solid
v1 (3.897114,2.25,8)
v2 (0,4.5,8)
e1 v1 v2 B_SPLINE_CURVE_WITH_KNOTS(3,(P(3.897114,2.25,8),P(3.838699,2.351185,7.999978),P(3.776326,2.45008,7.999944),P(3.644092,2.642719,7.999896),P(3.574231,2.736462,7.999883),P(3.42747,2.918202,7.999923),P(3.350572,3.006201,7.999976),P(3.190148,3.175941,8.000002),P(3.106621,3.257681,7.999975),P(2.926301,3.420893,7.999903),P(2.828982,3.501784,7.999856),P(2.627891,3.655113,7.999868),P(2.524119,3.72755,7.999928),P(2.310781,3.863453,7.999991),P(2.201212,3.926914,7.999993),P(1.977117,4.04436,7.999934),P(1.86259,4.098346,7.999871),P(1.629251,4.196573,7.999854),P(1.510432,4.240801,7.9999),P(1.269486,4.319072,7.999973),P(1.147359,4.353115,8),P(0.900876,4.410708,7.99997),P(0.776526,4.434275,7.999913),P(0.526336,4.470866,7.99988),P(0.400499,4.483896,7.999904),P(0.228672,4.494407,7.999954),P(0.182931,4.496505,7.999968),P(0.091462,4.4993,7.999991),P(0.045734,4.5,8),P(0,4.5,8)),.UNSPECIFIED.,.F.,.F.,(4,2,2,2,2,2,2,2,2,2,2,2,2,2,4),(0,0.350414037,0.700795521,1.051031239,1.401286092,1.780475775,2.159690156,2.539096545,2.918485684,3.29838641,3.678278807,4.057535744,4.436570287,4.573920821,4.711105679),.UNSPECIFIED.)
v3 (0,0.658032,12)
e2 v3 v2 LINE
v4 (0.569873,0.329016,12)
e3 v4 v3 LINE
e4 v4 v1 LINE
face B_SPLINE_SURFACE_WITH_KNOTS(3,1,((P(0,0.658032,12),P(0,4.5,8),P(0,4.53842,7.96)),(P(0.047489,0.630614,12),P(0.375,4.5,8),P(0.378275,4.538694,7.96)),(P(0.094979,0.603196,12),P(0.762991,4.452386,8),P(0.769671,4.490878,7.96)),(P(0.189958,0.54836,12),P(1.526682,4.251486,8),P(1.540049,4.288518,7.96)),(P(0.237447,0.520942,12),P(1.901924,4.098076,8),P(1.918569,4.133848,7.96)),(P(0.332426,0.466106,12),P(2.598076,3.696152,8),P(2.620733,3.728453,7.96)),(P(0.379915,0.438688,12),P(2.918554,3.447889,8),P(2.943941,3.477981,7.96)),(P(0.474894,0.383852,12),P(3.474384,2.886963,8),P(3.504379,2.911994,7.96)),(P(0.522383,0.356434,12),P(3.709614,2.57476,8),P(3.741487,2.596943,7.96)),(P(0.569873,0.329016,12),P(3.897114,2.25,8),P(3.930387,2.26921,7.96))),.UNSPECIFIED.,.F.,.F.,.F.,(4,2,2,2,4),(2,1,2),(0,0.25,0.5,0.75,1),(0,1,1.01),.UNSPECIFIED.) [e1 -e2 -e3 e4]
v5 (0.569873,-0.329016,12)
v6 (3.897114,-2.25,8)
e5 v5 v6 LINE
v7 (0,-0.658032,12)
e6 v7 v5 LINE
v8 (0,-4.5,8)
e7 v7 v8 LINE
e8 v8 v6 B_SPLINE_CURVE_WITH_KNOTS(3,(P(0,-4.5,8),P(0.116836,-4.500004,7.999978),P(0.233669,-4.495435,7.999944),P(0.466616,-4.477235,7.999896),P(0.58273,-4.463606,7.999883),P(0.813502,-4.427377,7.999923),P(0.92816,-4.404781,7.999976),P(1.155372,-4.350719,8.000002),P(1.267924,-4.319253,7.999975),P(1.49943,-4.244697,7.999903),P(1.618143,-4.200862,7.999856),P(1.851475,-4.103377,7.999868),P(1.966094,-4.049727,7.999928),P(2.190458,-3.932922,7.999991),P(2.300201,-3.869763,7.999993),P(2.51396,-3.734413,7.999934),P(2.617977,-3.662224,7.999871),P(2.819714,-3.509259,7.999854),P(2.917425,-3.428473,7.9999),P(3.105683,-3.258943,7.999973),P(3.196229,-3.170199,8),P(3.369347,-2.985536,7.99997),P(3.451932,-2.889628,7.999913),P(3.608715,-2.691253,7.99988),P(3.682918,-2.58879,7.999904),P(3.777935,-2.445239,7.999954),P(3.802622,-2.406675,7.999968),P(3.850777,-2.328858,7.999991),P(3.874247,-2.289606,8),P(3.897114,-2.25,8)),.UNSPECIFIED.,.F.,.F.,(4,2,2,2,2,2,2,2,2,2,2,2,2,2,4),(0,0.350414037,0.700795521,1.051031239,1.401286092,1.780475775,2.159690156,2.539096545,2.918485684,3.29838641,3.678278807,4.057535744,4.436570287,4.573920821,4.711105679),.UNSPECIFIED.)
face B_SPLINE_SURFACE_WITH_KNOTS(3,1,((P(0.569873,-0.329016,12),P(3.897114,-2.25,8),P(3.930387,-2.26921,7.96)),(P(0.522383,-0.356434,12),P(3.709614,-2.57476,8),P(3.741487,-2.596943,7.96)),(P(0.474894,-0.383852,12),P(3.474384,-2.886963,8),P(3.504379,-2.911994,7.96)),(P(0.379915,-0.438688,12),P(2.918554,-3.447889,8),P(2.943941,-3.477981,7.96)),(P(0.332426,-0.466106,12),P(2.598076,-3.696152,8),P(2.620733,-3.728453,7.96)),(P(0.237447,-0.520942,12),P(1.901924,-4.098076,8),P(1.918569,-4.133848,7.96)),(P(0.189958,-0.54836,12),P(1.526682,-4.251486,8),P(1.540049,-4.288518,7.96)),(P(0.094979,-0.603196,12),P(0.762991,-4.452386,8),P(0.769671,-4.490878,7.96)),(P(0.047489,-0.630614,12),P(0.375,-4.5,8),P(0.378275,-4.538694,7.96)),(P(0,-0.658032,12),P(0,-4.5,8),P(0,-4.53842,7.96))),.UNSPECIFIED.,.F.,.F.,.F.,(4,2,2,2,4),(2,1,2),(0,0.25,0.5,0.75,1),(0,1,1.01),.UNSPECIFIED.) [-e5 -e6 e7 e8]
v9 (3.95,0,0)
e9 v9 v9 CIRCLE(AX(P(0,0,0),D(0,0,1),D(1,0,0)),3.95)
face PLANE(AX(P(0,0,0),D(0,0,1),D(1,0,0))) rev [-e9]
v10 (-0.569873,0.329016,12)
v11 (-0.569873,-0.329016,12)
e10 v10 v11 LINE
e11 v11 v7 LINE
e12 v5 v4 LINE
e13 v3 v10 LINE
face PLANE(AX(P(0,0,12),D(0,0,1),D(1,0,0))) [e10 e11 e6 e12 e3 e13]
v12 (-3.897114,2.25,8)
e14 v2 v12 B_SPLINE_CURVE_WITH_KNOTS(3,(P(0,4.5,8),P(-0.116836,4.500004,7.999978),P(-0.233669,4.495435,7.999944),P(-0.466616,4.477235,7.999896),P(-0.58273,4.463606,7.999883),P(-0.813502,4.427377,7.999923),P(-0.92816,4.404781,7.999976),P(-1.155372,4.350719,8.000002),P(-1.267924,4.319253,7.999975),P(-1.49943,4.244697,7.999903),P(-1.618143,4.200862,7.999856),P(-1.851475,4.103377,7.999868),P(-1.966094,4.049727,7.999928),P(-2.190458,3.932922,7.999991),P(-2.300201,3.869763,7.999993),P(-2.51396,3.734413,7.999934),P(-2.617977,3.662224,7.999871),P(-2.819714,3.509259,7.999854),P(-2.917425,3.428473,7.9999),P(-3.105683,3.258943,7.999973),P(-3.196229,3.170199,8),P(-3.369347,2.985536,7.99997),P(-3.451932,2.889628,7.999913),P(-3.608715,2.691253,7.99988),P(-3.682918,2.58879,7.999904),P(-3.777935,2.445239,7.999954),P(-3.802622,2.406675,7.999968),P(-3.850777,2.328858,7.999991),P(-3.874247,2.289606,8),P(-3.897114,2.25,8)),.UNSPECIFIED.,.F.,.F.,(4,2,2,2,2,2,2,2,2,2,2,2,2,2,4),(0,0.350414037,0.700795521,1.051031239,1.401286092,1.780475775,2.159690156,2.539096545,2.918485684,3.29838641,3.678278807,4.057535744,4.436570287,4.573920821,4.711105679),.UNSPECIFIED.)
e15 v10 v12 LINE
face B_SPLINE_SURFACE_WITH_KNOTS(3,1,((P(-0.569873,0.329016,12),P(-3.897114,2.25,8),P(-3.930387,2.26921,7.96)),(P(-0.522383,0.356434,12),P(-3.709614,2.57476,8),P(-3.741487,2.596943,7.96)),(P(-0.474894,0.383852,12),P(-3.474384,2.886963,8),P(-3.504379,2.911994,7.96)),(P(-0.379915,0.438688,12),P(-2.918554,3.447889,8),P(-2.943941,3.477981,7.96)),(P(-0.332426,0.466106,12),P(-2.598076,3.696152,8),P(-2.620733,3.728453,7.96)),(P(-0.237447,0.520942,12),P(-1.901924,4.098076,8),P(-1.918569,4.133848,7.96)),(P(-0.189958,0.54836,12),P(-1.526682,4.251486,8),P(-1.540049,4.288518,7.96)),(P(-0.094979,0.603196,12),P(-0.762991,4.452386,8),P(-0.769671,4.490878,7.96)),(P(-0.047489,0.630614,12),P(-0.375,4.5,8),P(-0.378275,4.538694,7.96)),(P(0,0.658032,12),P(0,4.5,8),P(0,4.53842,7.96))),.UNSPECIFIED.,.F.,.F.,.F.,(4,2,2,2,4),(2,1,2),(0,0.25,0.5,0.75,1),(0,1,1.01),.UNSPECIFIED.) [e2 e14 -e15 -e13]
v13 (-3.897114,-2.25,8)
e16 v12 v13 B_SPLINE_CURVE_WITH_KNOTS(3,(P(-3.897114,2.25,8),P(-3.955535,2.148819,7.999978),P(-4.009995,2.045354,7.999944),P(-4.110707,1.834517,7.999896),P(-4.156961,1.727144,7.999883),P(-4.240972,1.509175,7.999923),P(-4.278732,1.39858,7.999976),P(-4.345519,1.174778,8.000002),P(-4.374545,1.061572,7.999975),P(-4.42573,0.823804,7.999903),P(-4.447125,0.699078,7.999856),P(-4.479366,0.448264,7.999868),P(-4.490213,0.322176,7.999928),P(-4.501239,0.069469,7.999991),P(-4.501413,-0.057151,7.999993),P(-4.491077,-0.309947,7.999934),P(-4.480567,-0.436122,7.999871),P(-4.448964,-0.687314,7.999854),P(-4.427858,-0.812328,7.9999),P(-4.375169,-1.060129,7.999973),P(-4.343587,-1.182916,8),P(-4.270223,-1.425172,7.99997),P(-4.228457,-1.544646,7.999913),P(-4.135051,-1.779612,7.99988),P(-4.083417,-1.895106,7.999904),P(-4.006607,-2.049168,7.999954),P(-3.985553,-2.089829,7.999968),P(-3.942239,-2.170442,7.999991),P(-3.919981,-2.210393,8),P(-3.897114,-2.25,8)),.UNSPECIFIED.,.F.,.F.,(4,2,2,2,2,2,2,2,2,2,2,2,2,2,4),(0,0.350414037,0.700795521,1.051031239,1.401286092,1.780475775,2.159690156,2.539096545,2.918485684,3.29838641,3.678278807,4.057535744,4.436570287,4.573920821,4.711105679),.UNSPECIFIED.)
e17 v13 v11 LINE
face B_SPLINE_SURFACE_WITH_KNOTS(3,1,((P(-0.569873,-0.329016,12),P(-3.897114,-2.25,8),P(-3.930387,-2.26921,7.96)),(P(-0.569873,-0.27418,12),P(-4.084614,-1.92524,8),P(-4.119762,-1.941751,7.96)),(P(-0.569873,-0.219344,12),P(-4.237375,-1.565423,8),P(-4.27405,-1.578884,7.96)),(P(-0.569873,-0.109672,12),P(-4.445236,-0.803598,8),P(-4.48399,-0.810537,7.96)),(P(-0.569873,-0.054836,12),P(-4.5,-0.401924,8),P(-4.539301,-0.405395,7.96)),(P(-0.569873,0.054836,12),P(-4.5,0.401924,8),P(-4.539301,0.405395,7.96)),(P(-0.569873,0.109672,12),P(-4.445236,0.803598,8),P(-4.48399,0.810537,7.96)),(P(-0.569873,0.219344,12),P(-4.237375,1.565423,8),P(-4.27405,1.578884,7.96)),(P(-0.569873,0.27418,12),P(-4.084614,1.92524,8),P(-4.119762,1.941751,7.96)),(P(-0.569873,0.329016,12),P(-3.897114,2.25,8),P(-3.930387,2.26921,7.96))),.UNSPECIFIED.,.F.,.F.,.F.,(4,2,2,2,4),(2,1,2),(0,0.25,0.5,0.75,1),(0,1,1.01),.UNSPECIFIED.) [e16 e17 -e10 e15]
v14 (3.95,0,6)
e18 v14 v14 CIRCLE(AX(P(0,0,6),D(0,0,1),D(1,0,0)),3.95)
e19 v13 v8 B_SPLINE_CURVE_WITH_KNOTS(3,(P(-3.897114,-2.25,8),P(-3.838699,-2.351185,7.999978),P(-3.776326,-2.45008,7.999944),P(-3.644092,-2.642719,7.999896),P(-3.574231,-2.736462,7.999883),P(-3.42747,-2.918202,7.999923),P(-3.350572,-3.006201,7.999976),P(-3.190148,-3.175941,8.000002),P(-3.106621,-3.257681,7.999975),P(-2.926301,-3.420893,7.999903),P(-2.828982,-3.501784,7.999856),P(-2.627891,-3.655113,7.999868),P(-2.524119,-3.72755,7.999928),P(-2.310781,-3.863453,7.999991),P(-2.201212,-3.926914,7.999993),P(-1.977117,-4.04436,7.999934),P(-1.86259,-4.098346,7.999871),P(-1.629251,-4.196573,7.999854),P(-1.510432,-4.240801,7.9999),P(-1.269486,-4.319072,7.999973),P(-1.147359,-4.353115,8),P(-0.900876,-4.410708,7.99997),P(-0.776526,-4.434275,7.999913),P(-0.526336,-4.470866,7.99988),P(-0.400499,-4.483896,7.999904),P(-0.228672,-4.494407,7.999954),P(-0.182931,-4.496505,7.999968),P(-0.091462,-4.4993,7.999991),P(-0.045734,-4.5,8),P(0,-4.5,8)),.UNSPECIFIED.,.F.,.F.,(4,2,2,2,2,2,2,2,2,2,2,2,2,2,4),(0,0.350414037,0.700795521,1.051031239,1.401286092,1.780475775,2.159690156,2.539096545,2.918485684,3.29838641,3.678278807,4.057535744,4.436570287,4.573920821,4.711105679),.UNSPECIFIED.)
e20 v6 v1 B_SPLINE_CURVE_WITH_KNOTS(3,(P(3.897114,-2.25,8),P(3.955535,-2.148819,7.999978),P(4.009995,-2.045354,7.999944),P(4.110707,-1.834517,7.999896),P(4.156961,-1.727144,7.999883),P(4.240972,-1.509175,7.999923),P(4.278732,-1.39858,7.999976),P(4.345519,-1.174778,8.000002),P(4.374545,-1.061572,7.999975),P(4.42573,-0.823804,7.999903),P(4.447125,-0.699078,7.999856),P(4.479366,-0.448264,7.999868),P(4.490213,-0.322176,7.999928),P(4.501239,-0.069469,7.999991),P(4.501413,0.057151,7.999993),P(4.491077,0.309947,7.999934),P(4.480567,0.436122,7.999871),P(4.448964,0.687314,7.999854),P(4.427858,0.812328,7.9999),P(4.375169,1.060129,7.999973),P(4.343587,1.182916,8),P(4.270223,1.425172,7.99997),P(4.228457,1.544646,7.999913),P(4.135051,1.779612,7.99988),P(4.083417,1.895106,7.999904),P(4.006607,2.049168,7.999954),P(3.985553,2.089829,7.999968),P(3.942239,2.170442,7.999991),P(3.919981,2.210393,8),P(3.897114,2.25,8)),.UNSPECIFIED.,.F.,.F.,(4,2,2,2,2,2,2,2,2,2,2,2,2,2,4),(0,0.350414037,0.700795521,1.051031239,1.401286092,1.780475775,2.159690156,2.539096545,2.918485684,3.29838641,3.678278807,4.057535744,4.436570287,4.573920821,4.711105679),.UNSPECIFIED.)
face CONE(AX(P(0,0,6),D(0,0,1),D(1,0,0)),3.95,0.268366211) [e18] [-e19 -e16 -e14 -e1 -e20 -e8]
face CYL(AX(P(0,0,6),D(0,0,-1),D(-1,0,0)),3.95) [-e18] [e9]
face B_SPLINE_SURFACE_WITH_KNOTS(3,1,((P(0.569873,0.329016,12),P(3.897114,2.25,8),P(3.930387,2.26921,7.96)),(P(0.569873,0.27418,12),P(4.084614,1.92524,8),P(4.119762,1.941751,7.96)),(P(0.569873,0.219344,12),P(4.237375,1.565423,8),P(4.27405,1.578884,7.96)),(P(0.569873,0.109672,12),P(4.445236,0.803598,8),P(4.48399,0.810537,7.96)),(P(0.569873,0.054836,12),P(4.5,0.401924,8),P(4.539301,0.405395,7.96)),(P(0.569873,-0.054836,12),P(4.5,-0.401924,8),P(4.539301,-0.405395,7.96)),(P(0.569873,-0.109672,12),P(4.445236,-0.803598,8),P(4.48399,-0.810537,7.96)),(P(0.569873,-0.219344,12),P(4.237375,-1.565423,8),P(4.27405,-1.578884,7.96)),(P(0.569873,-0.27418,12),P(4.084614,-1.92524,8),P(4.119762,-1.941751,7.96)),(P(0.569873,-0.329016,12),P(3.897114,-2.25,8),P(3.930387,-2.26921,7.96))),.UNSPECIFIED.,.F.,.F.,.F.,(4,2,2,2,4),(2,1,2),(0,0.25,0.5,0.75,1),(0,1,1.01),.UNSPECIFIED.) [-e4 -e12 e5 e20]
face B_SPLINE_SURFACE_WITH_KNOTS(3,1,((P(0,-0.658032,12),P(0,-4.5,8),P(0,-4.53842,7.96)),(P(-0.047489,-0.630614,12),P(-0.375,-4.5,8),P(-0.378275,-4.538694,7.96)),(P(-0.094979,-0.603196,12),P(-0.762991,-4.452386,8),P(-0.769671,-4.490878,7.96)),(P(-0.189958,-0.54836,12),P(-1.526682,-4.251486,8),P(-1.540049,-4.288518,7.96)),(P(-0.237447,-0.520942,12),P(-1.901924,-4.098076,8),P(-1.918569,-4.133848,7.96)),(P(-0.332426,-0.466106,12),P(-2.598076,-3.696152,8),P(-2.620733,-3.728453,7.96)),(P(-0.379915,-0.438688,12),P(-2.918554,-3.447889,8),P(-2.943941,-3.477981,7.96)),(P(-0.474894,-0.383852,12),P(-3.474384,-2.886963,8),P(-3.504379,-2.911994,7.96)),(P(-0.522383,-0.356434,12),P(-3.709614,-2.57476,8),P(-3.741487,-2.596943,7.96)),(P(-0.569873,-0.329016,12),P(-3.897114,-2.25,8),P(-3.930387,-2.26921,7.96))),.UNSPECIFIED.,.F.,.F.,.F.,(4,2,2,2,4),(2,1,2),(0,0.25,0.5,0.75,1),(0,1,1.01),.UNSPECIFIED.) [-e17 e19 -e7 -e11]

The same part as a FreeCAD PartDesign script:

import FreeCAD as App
import Part
import Sketcher
Q = App.Units.Quantity


def add_polygon(sketch, points):
    """Adds a closed chain of lines whose ends are joined by coincident constraints."""
    first, n = sketch.GeometryCount, len(points)
    for a, b in zip(points, points[1:] + points[:1]):
        sketch.addGeometry(Part.LineSegment(App.Vector(*a, 0), App.Vector(*b, 0)), False)
    for i in range(n):
        sketch.addConstraint(Sketcher.Constraint("Coincident", first + i, 2, first + (i + 1) % n, 1))

doc = App.newDocument("Part")
body = doc.addObject("PartDesign::Body", "Body")

# Sketch on XY plane
sketch1 = doc.addObject("Sketcher::SketchObject", "Sketch")
body.addObject(sketch1)
sketch1.AttachmentSupport = (doc.XY_Plane, [""])
sketch1.MapMode = "FlatFace"
sketch1.addGeometry(Part.Circle(App.Vector(0, 0, 0), App.Vector(0, 0, 1), 4), False)
sketch1.addConstraint(Sketcher.Constraint("Coincident", 0, 3, -1, 1))
sketch1.addConstraint(Sketcher.Constraint("Diameter", 0, 7.9))
pad1 = doc.addObject("PartDesign::Pad", "Pad")
body.addObject(pad1)
pad1.Profile = sketch1
pad1.Length = 6

# Sketch on XY plane
sketch2 = doc.addObject("Sketcher::SketchObject", "Sketch001")
body.addObject(sketch2)
sketch2.AttachmentSupport = (doc.XY_Plane, [""])
sketch2.MapMode = "FlatFace"
sketch2.AttachmentOffset = App.Placement(App.Vector(0, 0, 8), App.Rotation())
sketch2.addGeometry(Part.Circle(App.Vector(0, 0, 0), App.Vector(0, 0, 1), 4.5), False)
sketch2.addConstraint(Sketcher.Constraint("Coincident", 0, 3, -1, 1))
sketch2.addConstraint(Sketcher.Constraint("Diameter", 0, 9.0))

# Sketch on XY plane
sketch3 = doc.addObject("Sketcher::SketchObject", "Sketch002")
body.addObject(sketch3)
sketch3.AttachmentSupport = (doc.XY_Plane, [""])
sketch3.MapMode = "FlatFace"
sketch3.AttachmentOffset = App.Placement(App.Vector(0, 0, 6), App.Rotation())
sketch3.addGeometry(Part.Circle(App.Vector(0, 0, 0), App.Vector(0, 0, 1), 4), False)
sketch3.addConstraint(Sketcher.Constraint("Coincident", 0, 3, -1, 1))
sketch3.addConstraint(Sketcher.Constraint("Diameter", 0, 7.9))

additiveloft = doc.addObject("PartDesign::AdditiveLoft", "AdditiveLoft")
body.addObject(additiveloft)
additiveloft.Profile = sketch2
additiveloft.Sections = [sketch3]

# Sketch on XY plane
sketch4 = doc.addObject("Sketcher::SketchObject", "Sketch003")
body.addObject(sketch4)
sketch4.AttachmentSupport = (doc.XY_Plane, [""])
sketch4.MapMode = "FlatFace"
sketch4.AttachmentOffset = App.Placement(App.Vector(0, 0, 12), App.Rotation())
add_polygon(sketch4, [(0, -0.7), (0.6, -0.3), (0.6, 0.3), (0, 0.7), (-0.6, 0.3), (-0.6, -0.3)])  # lines 0-5
sketch4.addConstraint(Sketcher.Constraint("Vertical", 1))
sketch4.addConstraint(Sketcher.Constraint("Vertical", 4))
sketch4.addConstraint(Sketcher.Constraint("Symmetric", 0, 2, 3, 2, -1, 1))
sketch4.addConstraint(Sketcher.Constraint("Symmetric", 2, 2, 5, 2, -1, 1))
sketch4.addConstraint(Sketcher.Constraint("PointOnObject", 2, 2, -2))
sketch4.addConstraint(Sketcher.Constraint("Parallel", 2, 5))
sketch4.addConstraint(Sketcher.Constraint("Horizontal", 1, 2, 3, 2))
sketch4.addConstraint(Sketcher.Constraint("Angle", 0, Q("30 deg")))
sketch4.addConstraint(Sketcher.Constraint("DistanceY", 1, 1, 1, 2, 0.658032))
sketch4.addConstraint(Sketcher.Constraint("DistanceY", 0, 2, 2, 2, 0.987048))

# Sketch on XY plane
sketch5 = doc.addObject("Sketcher::SketchObject", "Sketch004")
body.addObject(sketch5)
sketch5.AttachmentSupport = (doc.XY_Plane, [""])
sketch5.MapMode = "FlatFace"
sketch5.AttachmentOffset = App.Placement(App.Vector(0, 0, 8), App.Rotation())
sketch5.addGeometry(Part.BSplineCurve([App.Vector(-3.897114, -2.25, 0), App.Vector(-3.447114, -3.029423, 0), App.Vector(-2.763979, -3.759394, 0), App.Vector(-1.873741, -4.273373, 0), App.Vector(-0.9, -4.5, 0), App.Vector(0.9, -4.5, 0), App.Vector(1.873741, -4.273373, 0), App.Vector(2.763979, -3.759394, 0), App.Vector(3.447114, -3.029423, 0), App.Vector(4.347114, -1.470577, 0), App.Vector(4.63772, -0.513979, 0), App.Vector(4.63772, 0.513979, 0), App.Vector(4.347114, 1.470577, 0), App.Vector(3.447114, 3.029423, 0), App.Vector(2.763979, 3.759394, 0), App.Vector(1.873741, 4.273373, 0), App.Vector(0.9, 4.5, 0), App.Vector(-0.9, 4.5, 0), App.Vector(-1.873741, 4.273373, 0), App.Vector(-2.763979, 3.759394, 0), App.Vector(-3.447114, 3.029423, 0), App.Vector(-4.347114, 1.470577, 0), App.Vector(-4.63772, 0.513979, 0), App.Vector(-4.63772, -0.513979, 0), App.Vector(-4.347114, -1.470577, 0), App.Vector(-3.897114, -2.25, 0)], [6, 4, 4, 4, 4, 4, 6], [0, 1, 2, 3, 4, 5, 6], False, 5, [1, 1, 0.992820323, 0.992820323, 1, 1, 0.992820323, 0.992820323, 1, 1, 0.992820323, 0.992820323, 1, 1, 0.992820323, 0.992820323, 1, 1, 0.992820323, 0.992820323, 1, 1, 0.992820323, 0.992820323, 1, 1], False), False)
sketch5.addConstraint(Sketcher.Constraint("Block", 0))

additiveloft2 = doc.addObject("PartDesign::AdditiveLoft", "AdditiveLoft001")
body.addObject(additiveloft2)
additiveloft2.Profile = sketch4
additiveloft2.Sections = [sketch5]

doc.recompute()
